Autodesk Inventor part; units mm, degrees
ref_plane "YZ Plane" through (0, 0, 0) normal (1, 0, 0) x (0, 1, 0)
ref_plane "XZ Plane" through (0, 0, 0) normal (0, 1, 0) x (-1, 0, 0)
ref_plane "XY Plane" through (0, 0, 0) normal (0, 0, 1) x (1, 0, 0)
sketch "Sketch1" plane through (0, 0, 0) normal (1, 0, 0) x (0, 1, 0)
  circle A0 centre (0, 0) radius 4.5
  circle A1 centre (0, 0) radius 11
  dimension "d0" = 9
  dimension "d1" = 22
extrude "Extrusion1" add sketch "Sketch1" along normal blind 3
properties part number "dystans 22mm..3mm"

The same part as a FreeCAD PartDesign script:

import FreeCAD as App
import Part
import Sketcher
Q = App.Units.Quantity

doc = App.newDocument("Part")
body = doc.addObject("PartDesign::Body", "Body")

sketch1 = doc.addObject("Sketcher::SketchObject", "Sketch")
body.addObject(sketch1)
sketch1.AttachmentSupport = (doc.YZ_Plane, [""])
sketch1.MapMode = "FlatFace"
sketch1.addGeometry([
    Part.Circle(App.Vector(0, 0, 0), App.Vector(0, 0, 1), 11),
    Part.Circle(App.Vector(0, 0, 0), App.Vector(0, 0, 1), 4.5),
], False)
sketch1.addConstraint([
    Sketcher.Constraint("Coincident", 0, 3, -1, 1),
    Sketcher.Constraint("Coincident", 1, 3, -1, 1),
    Sketcher.Constraint("Diameter", 0, Q("22 mm")),
    Sketcher.Constraint("Diameter", 1, Q("9 mm")),
])
pad1 = doc.addObject("PartDesign::Pad", "Pad")
body.addObject(pad1)
pad1.Profile = sketch1
pad1.Length = 3

doc.recompute()
